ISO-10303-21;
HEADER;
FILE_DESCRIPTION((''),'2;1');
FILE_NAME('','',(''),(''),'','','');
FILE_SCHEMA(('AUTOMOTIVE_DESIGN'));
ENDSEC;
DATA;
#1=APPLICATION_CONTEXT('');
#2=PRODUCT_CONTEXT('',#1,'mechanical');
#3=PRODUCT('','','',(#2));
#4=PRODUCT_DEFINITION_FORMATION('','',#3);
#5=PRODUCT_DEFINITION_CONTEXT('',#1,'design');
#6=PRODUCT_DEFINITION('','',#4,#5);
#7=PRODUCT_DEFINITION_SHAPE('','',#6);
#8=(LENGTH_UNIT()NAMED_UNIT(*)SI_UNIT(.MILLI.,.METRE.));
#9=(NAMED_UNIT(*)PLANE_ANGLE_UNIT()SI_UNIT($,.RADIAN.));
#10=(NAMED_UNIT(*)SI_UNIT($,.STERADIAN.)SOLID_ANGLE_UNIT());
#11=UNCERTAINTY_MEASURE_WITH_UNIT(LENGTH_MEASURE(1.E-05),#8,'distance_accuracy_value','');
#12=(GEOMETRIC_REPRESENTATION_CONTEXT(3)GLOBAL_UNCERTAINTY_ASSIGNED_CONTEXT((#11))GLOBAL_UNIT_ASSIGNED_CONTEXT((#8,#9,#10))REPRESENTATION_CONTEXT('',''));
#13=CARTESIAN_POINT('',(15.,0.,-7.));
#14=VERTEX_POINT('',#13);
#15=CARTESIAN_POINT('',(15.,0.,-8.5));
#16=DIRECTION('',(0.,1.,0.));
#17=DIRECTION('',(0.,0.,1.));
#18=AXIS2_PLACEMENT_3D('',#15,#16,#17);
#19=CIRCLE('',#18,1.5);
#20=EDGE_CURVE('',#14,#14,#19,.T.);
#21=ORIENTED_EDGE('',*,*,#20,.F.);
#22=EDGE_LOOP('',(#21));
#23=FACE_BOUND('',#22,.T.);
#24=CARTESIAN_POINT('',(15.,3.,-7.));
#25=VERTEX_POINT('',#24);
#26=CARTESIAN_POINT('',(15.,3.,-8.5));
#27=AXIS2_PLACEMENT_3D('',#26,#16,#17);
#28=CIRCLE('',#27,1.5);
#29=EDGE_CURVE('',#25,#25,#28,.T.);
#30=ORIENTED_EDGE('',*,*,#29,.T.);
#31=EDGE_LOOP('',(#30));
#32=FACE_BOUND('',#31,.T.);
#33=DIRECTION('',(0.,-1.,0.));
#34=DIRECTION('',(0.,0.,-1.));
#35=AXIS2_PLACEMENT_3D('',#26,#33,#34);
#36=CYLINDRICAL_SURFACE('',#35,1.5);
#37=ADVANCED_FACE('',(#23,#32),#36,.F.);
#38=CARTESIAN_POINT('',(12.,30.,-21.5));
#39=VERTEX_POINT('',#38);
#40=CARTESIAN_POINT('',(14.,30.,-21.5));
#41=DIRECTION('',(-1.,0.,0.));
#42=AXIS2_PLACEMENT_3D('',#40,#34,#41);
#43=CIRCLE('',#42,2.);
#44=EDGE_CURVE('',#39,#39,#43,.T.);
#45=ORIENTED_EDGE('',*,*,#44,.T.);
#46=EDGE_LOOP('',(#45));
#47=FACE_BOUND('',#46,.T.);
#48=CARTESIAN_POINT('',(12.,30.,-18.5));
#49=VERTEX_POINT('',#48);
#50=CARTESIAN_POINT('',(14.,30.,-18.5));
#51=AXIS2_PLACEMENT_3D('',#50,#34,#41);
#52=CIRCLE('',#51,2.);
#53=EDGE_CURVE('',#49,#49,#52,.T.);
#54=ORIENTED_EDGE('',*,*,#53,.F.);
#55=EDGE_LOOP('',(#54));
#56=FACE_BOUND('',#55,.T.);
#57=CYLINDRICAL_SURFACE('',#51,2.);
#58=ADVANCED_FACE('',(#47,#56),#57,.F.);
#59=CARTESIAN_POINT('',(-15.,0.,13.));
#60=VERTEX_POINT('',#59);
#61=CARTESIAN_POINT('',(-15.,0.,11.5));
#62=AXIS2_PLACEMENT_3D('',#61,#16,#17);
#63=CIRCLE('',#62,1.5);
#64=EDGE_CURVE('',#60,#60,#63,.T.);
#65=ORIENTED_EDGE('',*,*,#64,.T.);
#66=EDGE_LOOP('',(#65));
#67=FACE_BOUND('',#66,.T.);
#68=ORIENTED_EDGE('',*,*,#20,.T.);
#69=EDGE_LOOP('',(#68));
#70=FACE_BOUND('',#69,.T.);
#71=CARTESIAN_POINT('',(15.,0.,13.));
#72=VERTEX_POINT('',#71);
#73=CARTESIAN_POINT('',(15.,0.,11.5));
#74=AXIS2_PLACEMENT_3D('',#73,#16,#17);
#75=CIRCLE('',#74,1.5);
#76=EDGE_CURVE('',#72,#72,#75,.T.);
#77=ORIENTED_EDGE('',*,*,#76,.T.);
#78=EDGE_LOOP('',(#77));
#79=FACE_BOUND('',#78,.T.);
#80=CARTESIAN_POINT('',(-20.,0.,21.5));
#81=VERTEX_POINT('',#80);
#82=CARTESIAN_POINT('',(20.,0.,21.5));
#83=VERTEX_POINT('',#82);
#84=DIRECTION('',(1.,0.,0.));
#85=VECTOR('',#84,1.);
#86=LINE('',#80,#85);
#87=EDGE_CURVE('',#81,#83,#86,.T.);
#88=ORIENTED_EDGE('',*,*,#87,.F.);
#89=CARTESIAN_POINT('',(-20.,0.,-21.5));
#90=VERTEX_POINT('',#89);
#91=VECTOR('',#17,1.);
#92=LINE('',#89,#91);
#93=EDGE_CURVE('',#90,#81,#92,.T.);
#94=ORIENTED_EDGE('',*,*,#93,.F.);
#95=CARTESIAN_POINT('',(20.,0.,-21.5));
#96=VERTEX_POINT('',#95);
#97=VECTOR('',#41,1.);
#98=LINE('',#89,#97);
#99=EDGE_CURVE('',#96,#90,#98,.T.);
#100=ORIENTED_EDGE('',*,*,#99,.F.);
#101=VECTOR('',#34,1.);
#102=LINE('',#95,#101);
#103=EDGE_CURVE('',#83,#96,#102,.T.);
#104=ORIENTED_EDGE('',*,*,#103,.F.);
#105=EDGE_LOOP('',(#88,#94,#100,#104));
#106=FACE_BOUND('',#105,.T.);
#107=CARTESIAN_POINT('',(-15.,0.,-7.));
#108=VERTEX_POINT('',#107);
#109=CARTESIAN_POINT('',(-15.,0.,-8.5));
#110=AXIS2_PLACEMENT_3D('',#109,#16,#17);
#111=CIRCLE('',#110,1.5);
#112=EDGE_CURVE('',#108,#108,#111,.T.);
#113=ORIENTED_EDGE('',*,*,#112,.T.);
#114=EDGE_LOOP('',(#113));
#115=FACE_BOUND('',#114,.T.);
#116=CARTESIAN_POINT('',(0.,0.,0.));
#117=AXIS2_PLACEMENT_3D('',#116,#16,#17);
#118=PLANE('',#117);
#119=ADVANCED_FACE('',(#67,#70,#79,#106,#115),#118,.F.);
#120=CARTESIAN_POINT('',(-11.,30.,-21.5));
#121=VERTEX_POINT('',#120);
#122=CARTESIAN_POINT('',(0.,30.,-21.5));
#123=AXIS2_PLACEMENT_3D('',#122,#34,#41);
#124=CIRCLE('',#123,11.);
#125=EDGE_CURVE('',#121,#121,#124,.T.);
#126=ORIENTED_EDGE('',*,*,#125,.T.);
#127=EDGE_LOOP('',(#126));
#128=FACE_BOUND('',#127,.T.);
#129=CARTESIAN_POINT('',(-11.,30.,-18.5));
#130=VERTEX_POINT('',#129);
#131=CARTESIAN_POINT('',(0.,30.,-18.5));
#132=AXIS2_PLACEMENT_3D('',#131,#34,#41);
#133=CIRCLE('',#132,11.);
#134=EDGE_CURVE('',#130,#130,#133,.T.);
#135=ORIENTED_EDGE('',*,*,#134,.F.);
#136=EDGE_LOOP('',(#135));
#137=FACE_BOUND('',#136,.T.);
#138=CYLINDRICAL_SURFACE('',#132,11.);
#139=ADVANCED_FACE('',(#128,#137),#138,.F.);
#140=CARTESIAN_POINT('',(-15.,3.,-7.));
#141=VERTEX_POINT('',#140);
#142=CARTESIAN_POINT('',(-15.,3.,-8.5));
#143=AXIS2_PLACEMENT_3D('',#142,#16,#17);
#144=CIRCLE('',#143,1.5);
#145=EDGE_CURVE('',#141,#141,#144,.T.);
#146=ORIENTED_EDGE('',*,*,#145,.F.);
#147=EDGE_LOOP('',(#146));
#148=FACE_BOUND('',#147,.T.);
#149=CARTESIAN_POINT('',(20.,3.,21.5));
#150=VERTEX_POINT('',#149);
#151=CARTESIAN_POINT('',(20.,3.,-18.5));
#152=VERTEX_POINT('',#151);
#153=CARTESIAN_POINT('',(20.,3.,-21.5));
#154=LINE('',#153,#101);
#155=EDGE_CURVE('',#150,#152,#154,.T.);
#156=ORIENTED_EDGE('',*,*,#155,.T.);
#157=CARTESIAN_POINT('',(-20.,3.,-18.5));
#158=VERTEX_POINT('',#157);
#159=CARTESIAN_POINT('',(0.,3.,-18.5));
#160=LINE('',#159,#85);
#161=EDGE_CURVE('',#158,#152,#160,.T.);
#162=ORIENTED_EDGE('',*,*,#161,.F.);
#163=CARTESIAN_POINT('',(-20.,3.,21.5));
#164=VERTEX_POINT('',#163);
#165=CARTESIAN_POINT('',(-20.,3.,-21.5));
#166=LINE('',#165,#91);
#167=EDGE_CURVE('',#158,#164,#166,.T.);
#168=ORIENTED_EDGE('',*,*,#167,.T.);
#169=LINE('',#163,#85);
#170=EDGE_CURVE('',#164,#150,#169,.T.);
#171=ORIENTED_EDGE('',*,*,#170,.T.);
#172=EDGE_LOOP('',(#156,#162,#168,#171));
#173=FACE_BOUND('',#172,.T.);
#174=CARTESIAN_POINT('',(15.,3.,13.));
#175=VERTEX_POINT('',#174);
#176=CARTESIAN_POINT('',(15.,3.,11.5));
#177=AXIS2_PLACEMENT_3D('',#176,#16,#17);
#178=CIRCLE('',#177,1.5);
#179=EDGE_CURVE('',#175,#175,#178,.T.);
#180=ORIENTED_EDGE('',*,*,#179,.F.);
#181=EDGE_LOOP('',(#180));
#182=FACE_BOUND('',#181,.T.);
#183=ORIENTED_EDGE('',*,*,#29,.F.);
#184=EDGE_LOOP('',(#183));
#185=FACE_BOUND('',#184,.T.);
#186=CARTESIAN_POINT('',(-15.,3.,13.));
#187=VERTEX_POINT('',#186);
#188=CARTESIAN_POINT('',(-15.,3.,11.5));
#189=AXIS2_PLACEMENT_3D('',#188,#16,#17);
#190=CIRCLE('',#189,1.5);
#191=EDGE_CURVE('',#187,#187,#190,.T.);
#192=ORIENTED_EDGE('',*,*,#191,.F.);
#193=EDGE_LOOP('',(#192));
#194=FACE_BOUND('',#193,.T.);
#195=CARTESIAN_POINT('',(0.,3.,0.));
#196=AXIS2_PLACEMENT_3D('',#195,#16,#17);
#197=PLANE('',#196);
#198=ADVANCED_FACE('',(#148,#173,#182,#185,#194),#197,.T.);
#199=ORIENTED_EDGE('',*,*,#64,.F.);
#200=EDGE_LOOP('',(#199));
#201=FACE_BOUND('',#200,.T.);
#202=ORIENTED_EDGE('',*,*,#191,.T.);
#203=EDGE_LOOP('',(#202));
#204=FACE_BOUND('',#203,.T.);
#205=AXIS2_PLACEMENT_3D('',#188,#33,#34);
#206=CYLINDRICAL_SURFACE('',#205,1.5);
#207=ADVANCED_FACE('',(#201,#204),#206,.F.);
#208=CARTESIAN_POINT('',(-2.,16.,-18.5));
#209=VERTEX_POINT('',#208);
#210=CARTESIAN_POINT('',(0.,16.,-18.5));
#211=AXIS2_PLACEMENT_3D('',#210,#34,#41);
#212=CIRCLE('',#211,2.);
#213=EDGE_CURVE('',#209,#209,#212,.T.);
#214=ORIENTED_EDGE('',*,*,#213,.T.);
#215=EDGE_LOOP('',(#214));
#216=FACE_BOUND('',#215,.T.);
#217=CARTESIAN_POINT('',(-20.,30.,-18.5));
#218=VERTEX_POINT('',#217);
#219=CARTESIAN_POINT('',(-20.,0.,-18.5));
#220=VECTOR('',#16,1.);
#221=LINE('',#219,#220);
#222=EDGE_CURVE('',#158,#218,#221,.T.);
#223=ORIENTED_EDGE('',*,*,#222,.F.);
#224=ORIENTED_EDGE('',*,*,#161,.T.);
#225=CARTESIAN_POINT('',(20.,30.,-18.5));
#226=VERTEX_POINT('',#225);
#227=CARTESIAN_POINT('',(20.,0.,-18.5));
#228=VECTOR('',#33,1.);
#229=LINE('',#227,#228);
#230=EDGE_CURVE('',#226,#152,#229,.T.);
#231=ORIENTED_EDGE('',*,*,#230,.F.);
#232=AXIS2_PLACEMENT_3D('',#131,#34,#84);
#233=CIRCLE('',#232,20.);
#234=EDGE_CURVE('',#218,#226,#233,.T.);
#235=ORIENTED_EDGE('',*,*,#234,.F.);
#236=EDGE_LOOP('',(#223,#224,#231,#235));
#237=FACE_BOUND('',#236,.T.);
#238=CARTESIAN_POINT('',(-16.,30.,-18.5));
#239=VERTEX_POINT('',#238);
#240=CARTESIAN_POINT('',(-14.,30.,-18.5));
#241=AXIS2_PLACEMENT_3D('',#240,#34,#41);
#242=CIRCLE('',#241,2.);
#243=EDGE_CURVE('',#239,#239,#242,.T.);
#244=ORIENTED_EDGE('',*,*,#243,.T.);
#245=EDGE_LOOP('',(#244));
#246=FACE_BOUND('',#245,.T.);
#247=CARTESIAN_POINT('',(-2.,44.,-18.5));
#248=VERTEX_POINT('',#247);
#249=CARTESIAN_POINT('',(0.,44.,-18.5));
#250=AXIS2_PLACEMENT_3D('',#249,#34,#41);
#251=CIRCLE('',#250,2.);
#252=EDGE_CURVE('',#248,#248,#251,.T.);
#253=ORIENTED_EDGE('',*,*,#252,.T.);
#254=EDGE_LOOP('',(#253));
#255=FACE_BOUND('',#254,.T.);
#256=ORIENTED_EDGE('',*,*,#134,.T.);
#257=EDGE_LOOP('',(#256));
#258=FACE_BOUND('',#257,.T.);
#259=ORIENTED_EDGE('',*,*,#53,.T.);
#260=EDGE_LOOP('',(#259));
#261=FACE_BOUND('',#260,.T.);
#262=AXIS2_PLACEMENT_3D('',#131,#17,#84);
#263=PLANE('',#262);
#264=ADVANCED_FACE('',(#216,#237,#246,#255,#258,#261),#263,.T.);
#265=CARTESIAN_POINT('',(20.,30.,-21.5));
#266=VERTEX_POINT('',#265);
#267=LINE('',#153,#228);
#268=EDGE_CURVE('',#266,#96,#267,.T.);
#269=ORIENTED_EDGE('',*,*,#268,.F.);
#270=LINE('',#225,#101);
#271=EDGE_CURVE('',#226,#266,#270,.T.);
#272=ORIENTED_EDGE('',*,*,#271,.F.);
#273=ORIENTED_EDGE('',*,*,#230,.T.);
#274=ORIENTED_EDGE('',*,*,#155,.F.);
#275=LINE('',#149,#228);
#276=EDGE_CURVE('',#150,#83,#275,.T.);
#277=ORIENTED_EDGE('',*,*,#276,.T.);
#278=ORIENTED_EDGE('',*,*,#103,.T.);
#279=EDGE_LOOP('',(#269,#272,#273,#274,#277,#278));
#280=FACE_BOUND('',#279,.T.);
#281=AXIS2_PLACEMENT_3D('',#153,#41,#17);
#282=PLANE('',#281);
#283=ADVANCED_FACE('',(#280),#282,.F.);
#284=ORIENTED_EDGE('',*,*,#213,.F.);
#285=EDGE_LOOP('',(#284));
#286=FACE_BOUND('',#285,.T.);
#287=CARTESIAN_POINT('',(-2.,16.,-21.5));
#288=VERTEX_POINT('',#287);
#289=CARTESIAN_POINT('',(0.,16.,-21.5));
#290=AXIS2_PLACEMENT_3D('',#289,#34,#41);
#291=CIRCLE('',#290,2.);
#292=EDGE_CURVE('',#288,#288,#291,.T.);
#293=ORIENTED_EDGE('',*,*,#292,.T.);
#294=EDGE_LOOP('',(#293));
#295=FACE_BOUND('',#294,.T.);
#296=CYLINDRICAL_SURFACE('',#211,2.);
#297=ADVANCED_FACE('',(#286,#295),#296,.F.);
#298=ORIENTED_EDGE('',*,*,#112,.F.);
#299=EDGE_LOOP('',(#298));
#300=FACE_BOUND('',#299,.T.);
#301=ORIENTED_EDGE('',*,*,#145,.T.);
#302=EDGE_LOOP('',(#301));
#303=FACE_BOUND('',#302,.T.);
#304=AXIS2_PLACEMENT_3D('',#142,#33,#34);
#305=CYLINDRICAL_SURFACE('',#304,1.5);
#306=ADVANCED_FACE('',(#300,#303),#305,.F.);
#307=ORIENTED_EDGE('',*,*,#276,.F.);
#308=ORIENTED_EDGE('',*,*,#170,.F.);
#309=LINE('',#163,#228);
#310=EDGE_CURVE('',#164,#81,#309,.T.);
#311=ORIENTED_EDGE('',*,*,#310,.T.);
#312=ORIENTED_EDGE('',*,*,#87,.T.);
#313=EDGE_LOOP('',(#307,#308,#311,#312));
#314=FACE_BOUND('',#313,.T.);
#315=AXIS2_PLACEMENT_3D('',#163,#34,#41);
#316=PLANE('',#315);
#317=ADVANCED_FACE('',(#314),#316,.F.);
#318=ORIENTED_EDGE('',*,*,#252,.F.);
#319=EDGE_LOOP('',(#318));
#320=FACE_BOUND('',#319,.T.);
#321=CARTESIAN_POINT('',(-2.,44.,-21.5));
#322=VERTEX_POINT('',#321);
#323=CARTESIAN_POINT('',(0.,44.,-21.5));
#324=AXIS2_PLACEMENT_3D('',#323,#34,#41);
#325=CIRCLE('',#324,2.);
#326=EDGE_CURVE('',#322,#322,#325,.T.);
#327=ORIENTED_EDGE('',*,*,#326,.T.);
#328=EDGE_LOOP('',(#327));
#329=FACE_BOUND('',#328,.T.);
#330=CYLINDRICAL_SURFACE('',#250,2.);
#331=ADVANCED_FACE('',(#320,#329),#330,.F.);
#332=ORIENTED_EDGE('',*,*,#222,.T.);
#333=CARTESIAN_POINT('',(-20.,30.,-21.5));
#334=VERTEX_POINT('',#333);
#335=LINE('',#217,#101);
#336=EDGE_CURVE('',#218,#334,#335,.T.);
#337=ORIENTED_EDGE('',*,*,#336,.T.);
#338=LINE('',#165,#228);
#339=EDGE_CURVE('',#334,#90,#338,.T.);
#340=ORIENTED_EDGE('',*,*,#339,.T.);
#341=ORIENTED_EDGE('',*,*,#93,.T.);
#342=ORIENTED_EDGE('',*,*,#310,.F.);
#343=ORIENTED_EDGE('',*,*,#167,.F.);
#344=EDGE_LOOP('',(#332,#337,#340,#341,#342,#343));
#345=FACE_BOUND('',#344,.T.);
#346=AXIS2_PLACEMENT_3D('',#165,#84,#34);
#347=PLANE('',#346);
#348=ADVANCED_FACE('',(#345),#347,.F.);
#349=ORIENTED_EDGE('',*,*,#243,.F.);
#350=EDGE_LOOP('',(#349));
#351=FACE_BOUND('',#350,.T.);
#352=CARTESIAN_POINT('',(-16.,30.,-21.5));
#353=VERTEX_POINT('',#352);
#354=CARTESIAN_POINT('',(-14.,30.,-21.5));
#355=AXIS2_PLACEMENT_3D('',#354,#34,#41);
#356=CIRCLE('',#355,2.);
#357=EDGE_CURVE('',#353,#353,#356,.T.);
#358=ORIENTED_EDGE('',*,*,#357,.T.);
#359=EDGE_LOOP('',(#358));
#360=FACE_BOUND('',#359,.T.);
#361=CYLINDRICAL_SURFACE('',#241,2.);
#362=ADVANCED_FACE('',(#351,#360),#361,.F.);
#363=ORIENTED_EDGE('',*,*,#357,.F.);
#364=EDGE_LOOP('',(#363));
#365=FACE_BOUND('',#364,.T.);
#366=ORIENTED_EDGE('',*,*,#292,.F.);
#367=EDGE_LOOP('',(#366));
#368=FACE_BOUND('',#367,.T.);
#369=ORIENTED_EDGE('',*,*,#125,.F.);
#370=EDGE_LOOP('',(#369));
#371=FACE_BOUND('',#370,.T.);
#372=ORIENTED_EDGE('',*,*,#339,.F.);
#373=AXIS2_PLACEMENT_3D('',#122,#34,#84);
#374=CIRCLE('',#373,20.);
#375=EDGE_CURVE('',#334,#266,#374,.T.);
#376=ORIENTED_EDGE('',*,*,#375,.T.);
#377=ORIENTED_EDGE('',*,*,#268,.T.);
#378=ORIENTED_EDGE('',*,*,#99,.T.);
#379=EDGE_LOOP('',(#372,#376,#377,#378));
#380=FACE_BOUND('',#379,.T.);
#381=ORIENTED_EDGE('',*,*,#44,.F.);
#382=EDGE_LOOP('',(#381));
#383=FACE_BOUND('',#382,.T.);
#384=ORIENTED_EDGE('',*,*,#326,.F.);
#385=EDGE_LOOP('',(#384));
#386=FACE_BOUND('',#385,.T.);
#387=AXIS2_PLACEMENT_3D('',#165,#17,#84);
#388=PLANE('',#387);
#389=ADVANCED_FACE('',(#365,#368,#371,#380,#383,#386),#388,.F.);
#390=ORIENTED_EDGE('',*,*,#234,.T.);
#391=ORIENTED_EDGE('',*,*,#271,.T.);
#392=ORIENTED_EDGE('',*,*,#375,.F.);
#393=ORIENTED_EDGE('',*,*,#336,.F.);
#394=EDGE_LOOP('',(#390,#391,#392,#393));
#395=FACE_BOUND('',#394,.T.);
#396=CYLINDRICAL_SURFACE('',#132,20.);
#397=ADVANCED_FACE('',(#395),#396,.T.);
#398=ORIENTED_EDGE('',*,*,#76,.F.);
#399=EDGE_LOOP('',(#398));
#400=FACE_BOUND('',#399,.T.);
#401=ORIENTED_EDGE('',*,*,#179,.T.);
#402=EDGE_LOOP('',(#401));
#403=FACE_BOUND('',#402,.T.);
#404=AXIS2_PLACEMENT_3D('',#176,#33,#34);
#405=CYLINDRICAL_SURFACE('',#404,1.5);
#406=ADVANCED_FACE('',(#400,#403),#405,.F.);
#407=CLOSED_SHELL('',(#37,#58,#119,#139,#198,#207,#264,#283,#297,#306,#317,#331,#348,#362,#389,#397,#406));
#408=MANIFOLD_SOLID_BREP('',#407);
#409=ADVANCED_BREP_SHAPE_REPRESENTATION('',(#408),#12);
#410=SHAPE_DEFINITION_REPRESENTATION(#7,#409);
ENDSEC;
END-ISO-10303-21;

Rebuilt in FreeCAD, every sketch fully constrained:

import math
import FreeCAD as App
import Part
import Sketcher

V = App.Vector

doc = App.newDocument("Part")
body = doc.addObject("PartDesign::Body", "Body")

sketch1 = doc.addObject("Sketcher::SketchObject", "Sketch")
body.addObject(sketch1)
sketch1.AttachmentSupport = (doc.XZ_Plane, [""])
sketch1.MapMode = "FlatFace"
sketch1.addGeometry([
    Part.LineSegment(V(-20, -21.5, 0), V(-20, 21.5, 0)),
    Part.LineSegment(V(-20, 21.5, 0), V(20, 21.5, 0)),
    Part.LineSegment(V(20, 21.5, 0), V(20, -21.5, 0)),
    Part.LineSegment(V(20, -21.5, 0), V(-20, -21.5, 0)),
    Part.Circle(V(-15, 11.5, 0), V(0, 0, 1), 1.5),
    Part.Circle(V(15, 11.5, 0), V(0, 0, 1), 1.5),
    Part.Circle(V(-15, -8.5, 0), V(0, 0, 1), 1.5),
    Part.Circle(V(15, -8.5, 0), V(0, 0, 1), 1.5),
], False)
sketch1.addConstraint([
    Sketcher.Constraint("Coincident", 0, 2, 1, 1),
    Sketcher.Constraint("Coincident", 1, 2, 2, 1),
    Sketcher.Constraint("Coincident", 2, 2, 3, 1),
    Sketcher.Constraint("Coincident", 3, 2, 0, 1),
    Sketcher.Constraint("Vertical", 0),
    Sketcher.Constraint("Horizontal", 1),
    Sketcher.Constraint("Vertical", 2),
    Sketcher.Constraint("Horizontal", 3),
    Sketcher.Constraint("Equal", 4, 5),
    Sketcher.Constraint("Equal", 5, 6),
    Sketcher.Constraint("Equal", 6, 7),
    Sketcher.Constraint("Symmetric", 0, 2, 2, 2, -1, 1),
    Sketcher.Constraint("Symmetric", 4, 3, 5, 3, -2),
    Sketcher.Constraint("Symmetric", 6, 3, 7, 3, -2),
    Sketcher.Constraint("Vertical", 4, 3, 6, 3),
    Sketcher.Constraint("Diameter", 4, 3.0),
    Sketcher.Constraint("DistanceX", 1, 1, 1, 2, 40.0),
    Sketcher.Constraint("DistanceY", 0, 1, 0, 2, 43.0),
    Sketcher.Constraint("DistanceX", 4, 3, -1, 1, 15.0),
    Sketcher.Constraint("DistanceY", 6, 3, 4, 3, 20.0),
    Sketcher.Constraint("DistanceY", 4, 3, 0, 2, 10.0),
])
pad1 = doc.addObject("PartDesign::Pad", "Pad")
body.addObject(pad1)
pad1.Profile = sketch1
pad1.Length = 3
pad1.Reversed = True

sketch2 = doc.addObject("Sketcher::SketchObject", "Sketch001")
body.addObject(sketch2)
sketch2.AttachmentSupport = (doc.XY_Plane, [""])
sketch2.MapMode = "FlatFace"
sketch2.AttachmentOffset = App.Placement(V(0, 0, -21.5), App.Rotation())
sketch2.addGeometry([
    Part.LineSegment(V(20, 30, 0), V(20, 0, 0)),
    Part.LineSegment(V(20, 0, 0), V(-20, 0, 0)),
    Part.LineSegment(V(-20, 0, 0), V(-20, 30, 0)),
    Part.ArcOfCircle(Part.Circle(V(0, 30, 0), V(0, 0, 1), 20), math.radians(0), math.radians(180)),
    Part.Circle(V(0, 16, 0), V(0, 0, 1), 2),
    Part.Circle(V(-14, 30, 0), V(0, 0, 1), 2),
    Part.Circle(V(0, 30, 0), V(0, 0, 1), 11),
    Part.Circle(V(14, 30, 0), V(0, 0, 1), 2),
    Part.Circle(V(0, 44, 0), V(0, 0, 1), 2),
], False)
sketch2.addConstraint([
    Sketcher.Constraint("Coincident", 0, 2, 1, 1),
    Sketcher.Constraint("Coincident", 1, 2, 2, 1),
    Sketcher.Constraint("Tangent", 2, 2, 3, 2),
    Sketcher.Constraint("Tangent", 3, 1, 0, 1),
    Sketcher.Constraint("Vertical", 0),
    Sketcher.Constraint("Horizontal", 1),
    Sketcher.Constraint("Vertical", 2),
    Sketcher.Constraint("Coincident", 6, 3, 3, 3),
    Sketcher.Constraint("Equal", 4, 5),
    Sketcher.Constraint("Equal", 5, 7),
    Sketcher.Constraint("Equal", 7, 8),
    Sketcher.Constraint("Symmetric", 0, 2, 1, 2, -1, 1),
    Sketcher.Constraint("Symmetric", 5, 3, 7, 3, -2),
    Sketcher.Constraint("PointOnObject", 4, 3, -2),
    Sketcher.Constraint("PointOnObject", 8, 3, -2),
    Sketcher.Constraint("Horizontal", 3, 3, 5, 3),
    Sketcher.Constraint("Diameter", 4, 4.0),
    Sketcher.Constraint("Diameter", 6, 22.0),
    Sketcher.Constraint("Radius", 3, 20.0),
    Sketcher.Constraint("DistanceY", 0, 2, 0, 1, 30.0),
    Sketcher.Constraint("DistanceY", -1, 1, 4, 3, 16.0),
    Sketcher.Constraint("DistanceX", 5, 3, -1, 1, 14.0),
    Sketcher.Constraint("DistanceY", -1, 1, 8, 3, 44.0),
])
pad2 = doc.addObject("PartDesign::Pad", "Pad001")
body.addObject(pad2)
pad2.Profile = sketch2
pad2.Length = 3

doc.recompute()
